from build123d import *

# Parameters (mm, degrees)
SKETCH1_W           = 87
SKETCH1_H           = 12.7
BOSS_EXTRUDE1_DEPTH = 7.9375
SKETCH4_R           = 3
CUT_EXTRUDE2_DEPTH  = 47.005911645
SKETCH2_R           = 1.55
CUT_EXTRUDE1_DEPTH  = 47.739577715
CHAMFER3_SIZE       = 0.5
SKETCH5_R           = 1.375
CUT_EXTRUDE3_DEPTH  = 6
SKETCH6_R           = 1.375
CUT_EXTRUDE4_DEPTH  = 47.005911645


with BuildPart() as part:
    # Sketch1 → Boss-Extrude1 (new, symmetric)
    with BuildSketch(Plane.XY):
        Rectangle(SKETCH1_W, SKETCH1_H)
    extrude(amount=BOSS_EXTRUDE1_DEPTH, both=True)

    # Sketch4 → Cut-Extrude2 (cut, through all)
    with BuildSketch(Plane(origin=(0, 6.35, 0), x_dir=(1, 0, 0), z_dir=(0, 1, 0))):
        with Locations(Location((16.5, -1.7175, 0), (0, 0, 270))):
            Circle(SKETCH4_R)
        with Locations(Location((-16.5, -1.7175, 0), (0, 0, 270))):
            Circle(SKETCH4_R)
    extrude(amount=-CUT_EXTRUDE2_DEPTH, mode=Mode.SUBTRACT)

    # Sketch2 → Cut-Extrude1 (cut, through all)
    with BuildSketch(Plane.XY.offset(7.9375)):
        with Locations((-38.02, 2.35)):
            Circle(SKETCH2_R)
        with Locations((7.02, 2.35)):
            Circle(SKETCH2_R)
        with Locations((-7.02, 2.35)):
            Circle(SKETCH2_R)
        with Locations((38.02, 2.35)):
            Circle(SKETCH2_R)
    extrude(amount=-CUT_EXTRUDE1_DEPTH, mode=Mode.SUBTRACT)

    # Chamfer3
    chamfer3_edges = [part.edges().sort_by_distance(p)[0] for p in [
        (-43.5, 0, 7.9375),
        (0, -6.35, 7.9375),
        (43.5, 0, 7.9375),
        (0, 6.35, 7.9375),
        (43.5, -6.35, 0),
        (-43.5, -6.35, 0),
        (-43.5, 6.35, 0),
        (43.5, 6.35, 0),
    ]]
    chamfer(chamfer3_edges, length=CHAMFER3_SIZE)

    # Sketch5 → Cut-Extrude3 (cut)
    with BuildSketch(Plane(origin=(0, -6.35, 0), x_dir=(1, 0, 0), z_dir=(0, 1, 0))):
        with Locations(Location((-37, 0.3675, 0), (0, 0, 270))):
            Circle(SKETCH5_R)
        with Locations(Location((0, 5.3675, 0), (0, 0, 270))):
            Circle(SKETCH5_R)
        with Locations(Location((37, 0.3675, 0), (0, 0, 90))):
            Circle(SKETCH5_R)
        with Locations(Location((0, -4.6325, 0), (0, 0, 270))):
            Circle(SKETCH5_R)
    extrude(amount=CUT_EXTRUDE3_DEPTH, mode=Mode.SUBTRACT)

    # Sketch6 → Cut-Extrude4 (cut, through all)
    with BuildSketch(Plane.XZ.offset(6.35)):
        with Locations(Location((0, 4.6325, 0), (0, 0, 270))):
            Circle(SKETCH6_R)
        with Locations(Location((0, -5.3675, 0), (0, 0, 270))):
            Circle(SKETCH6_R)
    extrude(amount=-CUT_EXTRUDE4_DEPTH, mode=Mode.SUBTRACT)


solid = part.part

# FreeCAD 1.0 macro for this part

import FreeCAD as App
import Part
import Sketcher
from FreeCAD import Vector


def edges_at(feature, points):
    """Names of the edges that pass closest to the given points."""
    edges = feature.Shape.Edges
    near = lambda p: min(range(len(edges)), key=lambda i: edges[i].distToShape(Part.Vertex(*p))[0])
    return sorted({f"Edge{near(p) + 1}" for p in points})

doc = App.newDocument("Part")
body = doc.addObject("PartDesign::Body", "Body")

# Sketch on XY plane
sketch1 = body.newObject("Sketcher::SketchObject", "Sketch")
sketch1.AttachmentSupport = (doc.getObject("XY_Plane"), [""])
sketch1.MapMode = "FlatFace"
sketch1.addGeometry(Part.LineSegment(Vector(-44, 6, 0), Vector(-44, -6, 0)), False)
sketch1.addGeometry(Part.LineSegment(Vector(-44, -6, 0), Vector(44, -6, 0)), False)
sketch1.addGeometry(Part.LineSegment(Vector(44, -6, 0), Vector(44, 6, 0)), False)
sketch1.addGeometry(Part.LineSegment(Vector(44, 6, 0), Vector(-44, 6, 0)), False)
sketch1.addConstraint(Sketcher.Constraint("Coincident", 0, 2, 1, 1))
sketch1.addConstraint(Sketcher.Constraint("Coincident", 1, 2, 2, 1))
sketch1.addConstraint(Sketcher.Constraint("Coincident", 2, 2, 3, 1))
sketch1.addConstraint(Sketcher.Constraint("Coincident", 3, 2, 0, 1))
sketch1.addConstraint(Sketcher.Constraint("Vertical", 0))
sketch1.addConstraint(Sketcher.Constraint("Horizontal", 1))
sketch1.addConstraint(Sketcher.Constraint("Vertical", 2))
sketch1.addConstraint(Sketcher.Constraint("Horizontal", 3))
sketch1.addConstraint(Sketcher.Constraint("Symmetric", 0, 2, 2, 2, -1, 1))
sketch1.addConstraint(Sketcher.Constraint("DistanceX", 1, 1, 1, 2, 87.0))
sketch1.addConstraint(Sketcher.Constraint("DistanceY", 0, 2, 0, 1, 12.7))
pad1 = body.newObject("PartDesign::Pad", "Pad")
pad1.Profile = sketch1
pad1.Length = 15.875
pad1.Midplane = True

# Sketch on XZ plane
sketch2 = body.newObject("Sketcher::SketchObject", "Sketch001")
sketch2.AttachmentSupport = (doc.getObject("XZ_Plane"), [""])
sketch2.MapMode = "FlatFace"
sketch2.AttachmentOffset = App.Placement(Vector(0, 0, -6.35), App.Rotation())
sketch2.addGeometry(Part.Circle(Vector(16.5, 1.7, 0), Vector(0, 0, 1), 3), False)
sketch2.addGeometry(Part.Circle(Vector(-16.5, 1.7, 0), Vector(0, 0, 1), 3), False)
sketch2.addConstraint(Sketcher.Constraint("Equal", 0, 1))
sketch2.addConstraint(Sketcher.Constraint("Symmetric", 0, 3, 1, 3, -2))
sketch2.addConstraint(Sketcher.Constraint("Diameter", 0, 6.0))
sketch2.addConstraint(Sketcher.Constraint("DistanceX", 1, 3, 0, 3, 33.0))
sketch2.addConstraint(Sketcher.Constraint("DistanceY", -1, 1, 0, 3, 1.7175))
pocket1 = body.newObject("PartDesign::Pocket", "Pocket")
pocket1.Profile = sketch2
pocket1.Type = "ThroughAll"
pocket1.Reversed = True

# Sketch on XY plane
sketch3 = body.newObject("Sketcher::SketchObject", "Sketch002")
sketch3.AttachmentSupport = (doc.getObject("XY_Plane"), [""])
sketch3.MapMode = "FlatFace"
sketch3.AttachmentOffset = App.Placement(Vector(0, 0, 7.9375), App.Rotation())
sketch3.addGeometry(Part.Circle(Vector(-38, 2.4, 0), Vector(0, 0, 1), 1.6), False)
sketch3.addGeometry(Part.Circle(Vector(7, 2.4, 0), Vector(0, 0, 1), 1.6), False)
sketch3.addGeometry(Part.Circle(Vector(-7, 2.4, 0), Vector(0, 0, 1), 1.6), False)
sketch3.addGeometry(Part.Circle(Vector(38, 2.4, 0), Vector(0, 0, 1), 1.6), False)
sketch3.addConstraint(Sketcher.Constraint("Equal", 0, 1))
sketch3.addConstraint(Sketcher.Constraint("Equal", 1, 2))
sketch3.addConstraint(Sketcher.Constraint("Equal", 2, 3))
sketch3.addConstraint(Sketcher.Constraint("Symmetric", 1, 3, 2, 3, -2))
sketch3.addConstraint(Sketcher.Constraint("Symmetric", 0, 3, 3, 3, -2))
sketch3.addConstraint(Sketcher.Constraint("Horizontal", 0, 3, 1, 3))
sketch3.addConstraint(Sketcher.Constraint("Diameter", 0, 3.1))
sketch3.addConstraint(Sketcher.Constraint("DistanceX", 0, 3, 2, 3, 31.0))
sketch3.addConstraint(Sketcher.Constraint("DistanceX", 0, 3, -1, 1, 38.02))
sketch3.addConstraint(Sketcher.Constraint("DistanceY", -1, 1, 0, 3, 2.35))
pocket2 = body.newObject("PartDesign::Pocket", "Pocket001")
pocket2.Profile = sketch3
pocket2.Type = "ThroughAll"
doc.recompute()

chamfer = body.newObject("PartDesign::Chamfer", "Chamfer")
chamfer.Base = (pocket2, edges_at(pocket2, [
    (-43.5, 0, 7.938),
    (0, -6.35, 7.938),
    (43.5, 0, 7.938),
    (0, 6.35, 7.938),
    (43.5, -6.35, 0),
    (-43.5, -6.35, 0),
    (-43.5, 6.35, 0),
    (43.5, 6.35, 0),
]))
chamfer.Size = 0.5

# Sketch on XZ plane
sketch4 = body.newObject("Sketcher::SketchObject", "Sketch003")
sketch4.AttachmentSupport = (doc.getObject("XZ_Plane"), [""])
sketch4.MapMode = "FlatFace"
sketch4.AttachmentOffset = App.Placement(Vector(0, 0, 6.35), App.Rotation())
sketch4.addGeometry(Part.Circle(Vector(-37, -0.4, 0), Vector(0, 0, 1), 1.4), False)
sketch4.addGeometry(Part.Circle(Vector(0, -5.4, 0), Vector(0, 0, 1), 1.4), False)
sketch4.addGeometry(Part.Circle(Vector(37, -0.4, 0), Vector(0, 0, 1), 1.4), False)
sketch4.addGeometry(Part.Circle(Vector(0, 4.6, 0), Vector(0, 0, 1), 1.4), False)
sketch4.addConstraint(Sketcher.Constraint("Equal", 0, 1))
sketch4.addConstraint(Sketcher.Constraint("Equal", 1, 2))
sketch4.addConstraint(Sketcher.Constraint("Equal", 2, 3))
sketch4.addConstraint(Sketcher.Constraint("Symmetric", 0, 3, 2, 3, -2))
sketch4.addConstraint(Sketcher.Constraint("PointOnObject", 1, 3, -2))
sketch4.addConstraint(Sketcher.Constraint("PointOnObject", 3, 3, -2))
sketch4.addConstraint(Sketcher.Constraint("Diameter", 0, 2.75))
sketch4.addConstraint(Sketcher.Constraint("DistanceX", 0, 3, -1, 1, 37.0))
sketch4.addConstraint(Sketcher.Constraint("DistanceY", 1, 3, 0, 3, 5.0))
sketch4.addConstraint(Sketcher.Constraint("DistanceY", 1, 3, 3, 3, 10.0))
sketch4.addConstraint(Sketcher.Constraint("DistanceY", 0, 3, -1, 1, 0.3675))
pocket3 = body.newObject("PartDesign::Pocket", "Pocket002")
pocket3.Profile = sketch4
pocket3.Length = 6

# Sketch on XZ plane
sketch5 = body.newObject("Sketcher::SketchObject", "Sketch004")
sketch5.AttachmentSupport = (doc.getObject("XZ_Plane"), [""])
sketch5.MapMode = "FlatFace"
sketch5.AttachmentOffset = App.Placement(Vector(0, 0, 6.35), App.Rotation())
sketch5.addGeometry(Part.Circle(Vector(0, 4.6, 0), Vector(0, 0, 1), 1.4), False)
sketch5.addGeometry(Part.Circle(Vector(0, -5.4, 0), Vector(0, 0, 1), 1.4), False)
sketch5.addConstraint(Sketcher.Constraint("Equal", 0, 1))
sketch5.addConstraint(Sketcher.Constraint("PointOnObject", 0, 3, -2))
sketch5.addConstraint(Sketcher.Constraint("PointOnObject", 1, 3, -2))
sketch5.addConstraint(Sketcher.Constraint("Diameter", 0, 2.75))
sketch5.addConstraint(Sketcher.Constraint("DistanceY", 1, 3, 0, 3, 10.0))
sketch5.addConstraint(Sketcher.Constraint("DistanceY", -1, 1, 0, 3, 4.6325))
pocket4 = body.newObject("PartDesign::Pocket", "Pocket003")
pocket4.Profile = sketch5
pocket4.Type = "ThroughAll"

doc.recompute()
